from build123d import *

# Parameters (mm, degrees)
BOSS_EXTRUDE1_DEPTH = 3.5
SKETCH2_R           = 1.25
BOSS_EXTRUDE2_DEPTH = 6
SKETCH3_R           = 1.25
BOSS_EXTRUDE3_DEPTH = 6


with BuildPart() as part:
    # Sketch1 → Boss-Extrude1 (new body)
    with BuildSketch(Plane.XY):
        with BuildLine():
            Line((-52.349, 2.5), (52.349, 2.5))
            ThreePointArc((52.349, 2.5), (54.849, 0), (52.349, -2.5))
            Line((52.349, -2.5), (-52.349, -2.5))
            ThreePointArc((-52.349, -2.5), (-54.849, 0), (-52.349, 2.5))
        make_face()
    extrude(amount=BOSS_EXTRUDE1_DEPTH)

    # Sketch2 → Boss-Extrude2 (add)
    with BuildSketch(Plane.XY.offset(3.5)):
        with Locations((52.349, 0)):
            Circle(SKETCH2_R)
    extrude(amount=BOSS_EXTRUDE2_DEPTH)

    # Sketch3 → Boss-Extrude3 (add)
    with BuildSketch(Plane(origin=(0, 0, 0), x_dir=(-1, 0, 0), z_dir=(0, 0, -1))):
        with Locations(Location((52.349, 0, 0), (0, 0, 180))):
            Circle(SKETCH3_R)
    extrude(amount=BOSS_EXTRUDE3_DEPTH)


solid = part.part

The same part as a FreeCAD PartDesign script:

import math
import FreeCAD as App
import Part
import Sketcher

V = App.Vector

doc = App.newDocument("Part")
body = doc.addObject("PartDesign::Body", "Body")

# Sketch on XY plane
sketch1 = doc.addObject("Sketcher::SketchObject", "Sketch")
body.addObject(sketch1)
sketch1.AttachmentSupport = (doc.XY_Plane, [""])
sketch1.MapMode = "FlatFace"
sketch1.addGeometry([
    Part.LineSegment(V(52.3, 2.5, 0), V(-52.3, 2.5, 0)),
    Part.ArcOfCircle(Part.Circle(V(-52.3, 0, 0), V(0, 0, 1), 2.5), math.radians(90), math.radians(270)),
    Part.LineSegment(V(-52.3, -2.5, 0), V(52.3, -2.5, 0)),
    Part.ArcOfCircle(Part.Circle(V(52.3, 0, 0), V(0, 0, 1), 2.5), math.radians(-90), math.radians(90)),
], False)
sketch1.addConstraint([
    Sketcher.Constraint("Tangent", 0, 2, 1, 1),
    Sketcher.Constraint("Tangent", 1, 2, 2, 1),
    Sketcher.Constraint("Tangent", 2, 2, 3, 1),
    Sketcher.Constraint("Tangent", 3, 2, 0, 1),
    Sketcher.Constraint("Horizontal", 0),
    Sketcher.Constraint("Horizontal", 2),
    Sketcher.Constraint("Symmetric", 1, 3, 3, 3, -1, 1),
    Sketcher.Constraint("Radius", 1, 2.5),
    Sketcher.Constraint("DistanceX", 0, 2, 0, 1, 104.698),
])
pad1 = doc.addObject("PartDesign::Pad", "Pad")
body.addObject(pad1)
pad1.Profile = sketch1
pad1.Length = 3.5

# Sketch on XY plane
sketch2 = doc.addObject("Sketcher::SketchObject", "Sketch001")
body.addObject(sketch2)
sketch2.AttachmentSupport = (doc.XY_Plane, [""])
sketch2.MapMode = "FlatFace"
sketch2.AttachmentOffset = App.Placement(V(0, 0, 3.5), App.Rotation())
sketch2.addGeometry(Part.Circle(V(52.3, 0, 0), V(0, 0, 1), 1.2), False)
sketch2.addConstraint([
    Sketcher.Constraint("PointOnObject", 0, 3, -1),
    Sketcher.Constraint("Diameter", 0, 2.5),
    Sketcher.Constraint("DistanceX", -1, 1, 0, 3, 52.349),
])
pad2 = doc.addObject("PartDesign::Pad", "Pad001")
body.addObject(pad2)
pad2.Profile = sketch2
pad2.Length = 6

# Sketch on XY plane
sketch3 = doc.addObject("Sketcher::SketchObject", "Sketch002")
body.addObject(sketch3)
sketch3.AttachmentSupport = (doc.XY_Plane, [""])
sketch3.MapMode = "FlatFace"
sketch3.addGeometry(Part.Circle(V(-52.3, 0, 0), V(0, 0, 1), 1.2), False)
sketch3.addConstraint([
    Sketcher.Constraint("PointOnObject", 0, 3, -1),
    Sketcher.Constraint("Diameter", 0, 2.5),
    Sketcher.Constraint("DistanceX", 0, 3, -1, 1, 52.349),
])
pad3 = doc.addObject("PartDesign::Pad", "Pad002")
body.addObject(pad3)
pad3.Profile = sketch3
pad3.Length = 6
pad3.Reversed = True

doc.recompute()
